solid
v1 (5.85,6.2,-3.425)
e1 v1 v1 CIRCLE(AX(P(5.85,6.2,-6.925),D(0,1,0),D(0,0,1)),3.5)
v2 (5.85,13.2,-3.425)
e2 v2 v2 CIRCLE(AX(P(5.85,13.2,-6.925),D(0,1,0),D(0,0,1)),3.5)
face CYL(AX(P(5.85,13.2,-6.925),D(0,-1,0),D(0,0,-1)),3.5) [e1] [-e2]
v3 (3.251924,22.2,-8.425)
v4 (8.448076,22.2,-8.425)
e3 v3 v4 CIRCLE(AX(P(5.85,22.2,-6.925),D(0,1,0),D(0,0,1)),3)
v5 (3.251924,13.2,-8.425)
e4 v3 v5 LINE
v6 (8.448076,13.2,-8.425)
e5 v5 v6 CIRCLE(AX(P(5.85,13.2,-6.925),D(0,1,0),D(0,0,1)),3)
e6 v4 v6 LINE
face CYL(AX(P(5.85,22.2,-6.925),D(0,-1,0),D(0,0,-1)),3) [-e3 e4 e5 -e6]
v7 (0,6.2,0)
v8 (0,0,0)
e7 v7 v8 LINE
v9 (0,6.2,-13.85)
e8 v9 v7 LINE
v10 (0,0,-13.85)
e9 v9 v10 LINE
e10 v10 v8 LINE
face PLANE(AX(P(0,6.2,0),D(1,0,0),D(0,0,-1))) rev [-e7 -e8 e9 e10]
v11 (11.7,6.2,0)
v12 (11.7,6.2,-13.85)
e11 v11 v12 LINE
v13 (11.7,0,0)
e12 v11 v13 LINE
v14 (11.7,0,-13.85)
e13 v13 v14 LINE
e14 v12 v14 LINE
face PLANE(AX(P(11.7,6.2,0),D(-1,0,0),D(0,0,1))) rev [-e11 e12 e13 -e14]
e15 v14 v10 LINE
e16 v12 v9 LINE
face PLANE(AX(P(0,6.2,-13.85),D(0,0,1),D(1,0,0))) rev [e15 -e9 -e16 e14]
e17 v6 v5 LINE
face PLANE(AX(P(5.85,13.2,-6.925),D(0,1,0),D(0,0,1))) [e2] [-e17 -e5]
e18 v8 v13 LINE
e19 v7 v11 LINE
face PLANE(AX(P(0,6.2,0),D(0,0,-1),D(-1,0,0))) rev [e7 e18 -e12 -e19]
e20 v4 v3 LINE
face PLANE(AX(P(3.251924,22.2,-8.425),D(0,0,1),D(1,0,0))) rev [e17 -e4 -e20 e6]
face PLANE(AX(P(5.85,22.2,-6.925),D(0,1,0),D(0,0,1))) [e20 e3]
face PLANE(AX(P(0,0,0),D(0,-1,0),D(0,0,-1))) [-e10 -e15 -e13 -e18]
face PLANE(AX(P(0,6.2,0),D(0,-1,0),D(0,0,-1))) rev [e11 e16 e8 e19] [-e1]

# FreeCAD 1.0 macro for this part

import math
import FreeCAD as App
import Part
import Sketcher

doc = App.newDocument("Part")
body = doc.addObject("PartDesign::Body", "Body")

# Sketch on XZ plane
sketch1 = doc.addObject("Sketcher::SketchObject", "Sketch")
body.addObject(sketch1)
sketch1.AttachmentSupport = (doc.XZ_Plane, [""])
sketch1.MapMode = "FlatFace"
sketch1.addGeometry([
    Part.LineSegment(App.Vector(0, -14, 0), App.Vector(0, 0, 0)),
    Part.LineSegment(App.Vector(0, 0, 0), App.Vector(12, 0, 0)),
    Part.LineSegment(App.Vector(12, 0, 0), App.Vector(12, -14, 0)),
    Part.LineSegment(App.Vector(12, -14, 0), App.Vector(0, -14, 0)),
], False)
sketch1.addConstraint([
    Sketcher.Constraint("Coincident", 0, 2, 1, 1),
    Sketcher.Constraint("Coincident", 1, 2, 2, 1),
    Sketcher.Constraint("Coincident", 2, 2, 3, 1),
    Sketcher.Constraint("Coincident", 3, 2, 0, 1),
    Sketcher.Constraint("Vertical", 0),
    Sketcher.Constraint("Horizontal", 1),
    Sketcher.Constraint("Vertical", 2),
    Sketcher.Constraint("Horizontal", 3),
    Sketcher.Constraint("Coincident", 0, 2, -1, 1),
    Sketcher.Constraint("DistanceX", 1, 1, 1, 2, 11.7),
    Sketcher.Constraint("DistanceY", 0, 1, 0, 2, 13.85),
])
pad1 = doc.addObject("PartDesign::Pad", "Pad")
body.addObject(pad1)
pad1.Profile = sketch1
pad1.Length = 6.2
pad1.Reversed = True

# Sketch on XZ plane
sketch2 = doc.addObject("Sketcher::SketchObject", "Sketch001")
body.addObject(sketch2)
sketch2.AttachmentSupport = (doc.XZ_Plane, [""])
sketch2.MapMode = "FlatFace"
sketch2.AttachmentOffset = App.Placement(App.Vector(0, 0, -6.2), App.Rotation())
sketch2.addGeometry(Part.Circle(App.Vector(5.8, -6.9, 0), App.Vector(0, 0, 1), 3.5), False)
sketch2.addConstraint([
    Sketcher.Constraint("Diameter", 0, 7.0),
    Sketcher.Constraint("DistanceX", -1, 1, 0, 3, 5.85),
    Sketcher.Constraint("DistanceY", 0, 3, -1, 1, 6.925),
])
pad2 = doc.addObject("PartDesign::Pad", "Pad001")
body.addObject(pad2)
pad2.Profile = sketch2
pad2.Length = 7
pad2.Reversed = True

# Sketch on XZ plane
sketch3 = doc.addObject("Sketcher::SketchObject", "Sketch002")
body.addObject(sketch3)
sketch3.AttachmentSupport = (doc.XZ_Plane, [""])
sketch3.MapMode = "FlatFace"
sketch3.AttachmentOffset = App.Placement(App.Vector(0, 0, -13.2), App.Rotation())
sketch3.addGeometry([
    Part.LineSegment(App.Vector(8.4, -8.4, 0), App.Vector(3.3, -8.4, 0)),
    Part.ArcOfCircle(Part.Circle(App.Vector(5.8, -6.9, 0), App.Vector(0, 0, 1), 3), math.radians(-30), math.radians(210)),
], False)
sketch3.addConstraint([
    Sketcher.Constraint("Coincident", 0, 1, 1, 1),
    Sketcher.Constraint("Coincident", 1, 2, 0, 2),
    Sketcher.Constraint("Horizontal", 0),
    Sketcher.Constraint("Radius", 1, 3.0),
    Sketcher.Constraint("DistanceY", 0, 1, 1, 3, 1.5),
    Sketcher.Constraint("DistanceX", -1, 1, 1, 3, 5.85),
    Sketcher.Constraint("DistanceY", 1, 3, -1, 1, 6.925),
])
pad3 = doc.addObject("PartDesign::Pad", "Pad002")
body.addObject(pad3)
pad3.Profile = sketch3
pad3.Length = 9
pad3.Reversed = True

doc.recompute()
